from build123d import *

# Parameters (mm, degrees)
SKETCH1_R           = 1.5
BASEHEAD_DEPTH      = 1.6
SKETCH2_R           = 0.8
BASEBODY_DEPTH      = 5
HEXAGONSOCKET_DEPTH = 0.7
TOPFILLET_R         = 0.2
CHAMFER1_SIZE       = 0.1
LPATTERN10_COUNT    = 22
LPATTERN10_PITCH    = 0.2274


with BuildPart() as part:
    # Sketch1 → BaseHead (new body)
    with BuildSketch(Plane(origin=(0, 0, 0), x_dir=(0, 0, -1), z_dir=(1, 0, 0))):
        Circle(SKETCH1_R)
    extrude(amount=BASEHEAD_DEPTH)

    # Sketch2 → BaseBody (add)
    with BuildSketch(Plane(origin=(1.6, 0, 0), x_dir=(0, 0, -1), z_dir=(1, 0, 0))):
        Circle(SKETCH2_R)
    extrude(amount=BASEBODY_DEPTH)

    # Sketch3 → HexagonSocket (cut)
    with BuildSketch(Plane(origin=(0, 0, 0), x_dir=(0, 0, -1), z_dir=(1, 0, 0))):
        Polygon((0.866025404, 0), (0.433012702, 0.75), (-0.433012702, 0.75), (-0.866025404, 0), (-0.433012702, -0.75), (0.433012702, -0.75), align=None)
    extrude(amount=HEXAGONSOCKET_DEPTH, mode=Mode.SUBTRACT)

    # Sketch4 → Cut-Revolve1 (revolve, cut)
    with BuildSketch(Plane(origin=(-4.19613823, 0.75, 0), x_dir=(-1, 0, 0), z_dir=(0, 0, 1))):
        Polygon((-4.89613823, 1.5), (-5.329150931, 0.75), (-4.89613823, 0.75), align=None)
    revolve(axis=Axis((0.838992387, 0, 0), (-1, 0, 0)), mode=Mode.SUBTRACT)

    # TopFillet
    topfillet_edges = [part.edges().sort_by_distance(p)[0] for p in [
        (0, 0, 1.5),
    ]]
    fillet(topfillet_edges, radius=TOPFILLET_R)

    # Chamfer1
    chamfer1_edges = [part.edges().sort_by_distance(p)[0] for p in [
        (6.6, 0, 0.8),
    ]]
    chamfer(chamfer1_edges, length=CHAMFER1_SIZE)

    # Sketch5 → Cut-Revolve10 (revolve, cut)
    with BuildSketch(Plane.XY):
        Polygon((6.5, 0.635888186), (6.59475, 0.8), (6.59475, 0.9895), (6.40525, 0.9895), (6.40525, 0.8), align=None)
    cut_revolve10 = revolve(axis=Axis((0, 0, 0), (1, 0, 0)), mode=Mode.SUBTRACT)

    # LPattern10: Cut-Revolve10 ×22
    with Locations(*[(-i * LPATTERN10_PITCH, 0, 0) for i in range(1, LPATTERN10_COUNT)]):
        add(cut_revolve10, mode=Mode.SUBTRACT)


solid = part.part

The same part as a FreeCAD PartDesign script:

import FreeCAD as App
import Part
import Sketcher

V = App.Vector
Q = App.Units.Quantity


def edges_at(feature, points):
    """Names of the edges that pass closest to the given points."""
    edges = feature.Shape.Edges
    near = lambda p: min(range(len(edges)), key=lambda i: edges[i].distToShape(Part.Vertex(*p))[0])
    return sorted({f"Edge{near(p) + 1}" for p in points})


def add_polygon(sketch, points):
    """Adds a closed chain of lines whose ends are joined by coincident constraints."""
    first, n = sketch.GeometryCount, len(points)
    for a, b in zip(points, points[1:] + points[:1]):
        sketch.addGeometry(Part.LineSegment(App.Vector(*a, 0), App.Vector(*b, 0)), False)
    for i in range(n):
        sketch.addConstraint(Sketcher.Constraint("Coincident", first + i, 2, first + (i + 1) % n, 1))

doc = App.newDocument("Part")
body = doc.addObject("PartDesign::Body", "Body")

# Sketch on YZ plane
sketch1 = body.newObject("Sketcher::SketchObject", "Sketch")
sketch1.AttachmentSupport = (doc.getObject("YZ_Plane"), [""])
sketch1.MapMode = "FlatFace"
sketch1.addGeometry(Part.Circle(V(0, 0, 0), V(0, 0, 1), 1.5), False)
sketch1.addConstraint(Sketcher.Constraint("Coincident", 0, 3, -1, 1))
sketch1.addConstraint(Sketcher.Constraint("Diameter", 0, Q("3 mm")))
pad1 = body.newObject("PartDesign::Pad", "Pad")
pad1.Profile = sketch1
pad1.Length = 1.6

# Sketch on YZ plane
sketch2 = body.newObject("Sketcher::SketchObject", "Sketch001")
sketch2.AttachmentSupport = (doc.getObject("YZ_Plane"), [""])
sketch2.MapMode = "FlatFace"
sketch2.AttachmentOffset = App.Placement(V(0, 0, 1.6), App.Rotation())
sketch2.addGeometry(Part.Circle(V(0, 0, 0), V(0, 0, 1), 0.8), False)
sketch2.addConstraint(Sketcher.Constraint("Coincident", 0, 3, -1, 1))
sketch2.addConstraint(Sketcher.Constraint("Diameter", 0, Q("1.6 mm")))
pad2 = body.newObject("PartDesign::Pad", "Pad001")
pad2.Profile = sketch2
pad2.Length = 5

# Sketch on YZ plane
sketch3 = body.newObject("Sketcher::SketchObject", "Sketch002")
sketch3.AttachmentSupport = (doc.getObject("YZ_Plane"), [""])
sketch3.MapMode = "FlatFace"
add_polygon(sketch3, [(0, -0.9), (0.8, -0.4), (0.8, 0.4), (0, 0.9), (-0.8, 0.4), (-0.8, -0.4)])  # lines 0-5
sketch3.addConstraint(Sketcher.Constraint("Vertical", 1))
sketch3.addConstraint(Sketcher.Constraint("Vertical", 4))
sketch3.addConstraint(Sketcher.Constraint("Symmetric", 0, 2, 3, 2, -1, 1))
sketch3.addConstraint(Sketcher.Constraint("Symmetric", 2, 2, 5, 2, -1, 1))
sketch3.addConstraint(Sketcher.Constraint("PointOnObject", 2, 2, -2))
sketch3.addConstraint(Sketcher.Constraint("Parallel", 2, 5))
sketch3.addConstraint(Sketcher.Constraint("Horizontal", 1, 2, 3, 2))
sketch3.addConstraint(Sketcher.Constraint("Angle", 0, Q("30 deg")))
sketch3.addConstraint(Sketcher.Constraint("DistanceX", 3, 2, 1, 2, Q("1.5 mm")))
sketch3.addConstraint(Sketcher.Constraint("DistanceY", 1, 1, 1, 2, Q("0.866025 mm")))
pocket1 = body.newObject("PartDesign::Pocket", "Pocket")
pocket1.Profile = sketch3
pocket1.Length = 0.7
pocket1.Reversed = True

# Sketch on XY plane
sketch4 = body.newObject("Sketcher::SketchObject", "Sketch003")
sketch4.AttachmentSupport = (doc.getObject("XY_Plane"), [""])
sketch4.MapMode = "FlatFace"
add_polygon(sketch4, [(0.7, -0.75), (1.13, 0), (0.7, 0)])  # lines 0-2
sketch4.addConstraint(Sketcher.Constraint("Horizontal", 1))
sketch4.addConstraint(Sketcher.Constraint("Vertical", 2))
sketch4.addConstraint(Sketcher.Constraint("PointOnObject", 0, 2, -1))
sketch4.addConstraint(Sketcher.Constraint("Angle", 0, Q("60 deg")))
sketch4.addConstraint(Sketcher.Constraint("DistanceY", 2, 2, 2, 1, Q("0.75 mm")))
sketch4.addConstraint(Sketcher.Constraint("DistanceX", -1, 1, 1, 2, Q("0.7 mm")))
groove = body.newObject("PartDesign::Groove", "Groove")
groove.Profile = sketch4
groove.ReferenceAxis = (sketch4, ["H_Axis"])
groove.Angle = 360
doc.recompute()

fillet = body.newObject("PartDesign::Fillet", "Fillet")
fillet.Base = (groove, edges_at(groove, [(0, 0, 1.5)]))
fillet.Radius = 0.2
doc.recompute()

chamfer = body.newObject("PartDesign::Chamfer", "Chamfer")
chamfer.Base = (fillet, edges_at(fillet, [(6.6, 0, 0.8)]))
chamfer.Size = 0.1

# Sketch on XY plane
sketch5 = body.newObject("Sketcher::SketchObject", "Sketch004")
sketch5.AttachmentSupport = (doc.getObject("XY_Plane"), [""])
sketch5.MapMode = "FlatFace"
add_polygon(sketch5, [(6.5, 0.64), (6.59, 0.8), (6.59, 0.99), (6.41, 0.99), (6.41, 0.8)])  # lines 0-4
sketch5.addConstraint(Sketcher.Constraint("Vertical", 1))
sketch5.addConstraint(Sketcher.Constraint("Horizontal", 2))
sketch5.addConstraint(Sketcher.Constraint("Vertical", 3))
sketch5.addConstraint(Sketcher.Constraint("Horizontal", 0, 2, 3, 2))
sketch5.addConstraint(Sketcher.Constraint("Equal", 2, 1))
sketch5.addConstraint(Sketcher.Constraint("Equal", 0, 4))
sketch5.addConstraint(Sketcher.Constraint("Angle", 0, Q("60 deg")))
sketch5.addConstraint(Sketcher.Constraint("DistanceY", -1, 1, 0, 2, Q("0.8 mm")))
sketch5.addConstraint(Sketcher.Constraint("DistanceX", -1, 1, 4, 2, Q("6.5 mm")))
sketch5.addConstraint(Sketcher.Constraint("DistanceX", 2, 2, 2, 1, Q("0.1895 mm")))
groove2 = body.newObject("PartDesign::Groove", "Groove001")
groove2.Profile = sketch5
groove2.ReferenceAxis = (sketch5, ["H_Axis"])
groove2.Angle = 360
doc.recompute()

linearpattern = body.newObject("PartDesign::LinearPattern", "LinearPattern")
linearpattern.Originals = [groove2]
linearpattern.Direction = (doc.getObject("X_Axis"), [""])
linearpattern.Mode = "offset"
linearpattern.Offset = 0.2274
linearpattern.Occurrences = 22
linearpattern.Reversed = True
body.Tip = linearpattern

doc.recompute()
